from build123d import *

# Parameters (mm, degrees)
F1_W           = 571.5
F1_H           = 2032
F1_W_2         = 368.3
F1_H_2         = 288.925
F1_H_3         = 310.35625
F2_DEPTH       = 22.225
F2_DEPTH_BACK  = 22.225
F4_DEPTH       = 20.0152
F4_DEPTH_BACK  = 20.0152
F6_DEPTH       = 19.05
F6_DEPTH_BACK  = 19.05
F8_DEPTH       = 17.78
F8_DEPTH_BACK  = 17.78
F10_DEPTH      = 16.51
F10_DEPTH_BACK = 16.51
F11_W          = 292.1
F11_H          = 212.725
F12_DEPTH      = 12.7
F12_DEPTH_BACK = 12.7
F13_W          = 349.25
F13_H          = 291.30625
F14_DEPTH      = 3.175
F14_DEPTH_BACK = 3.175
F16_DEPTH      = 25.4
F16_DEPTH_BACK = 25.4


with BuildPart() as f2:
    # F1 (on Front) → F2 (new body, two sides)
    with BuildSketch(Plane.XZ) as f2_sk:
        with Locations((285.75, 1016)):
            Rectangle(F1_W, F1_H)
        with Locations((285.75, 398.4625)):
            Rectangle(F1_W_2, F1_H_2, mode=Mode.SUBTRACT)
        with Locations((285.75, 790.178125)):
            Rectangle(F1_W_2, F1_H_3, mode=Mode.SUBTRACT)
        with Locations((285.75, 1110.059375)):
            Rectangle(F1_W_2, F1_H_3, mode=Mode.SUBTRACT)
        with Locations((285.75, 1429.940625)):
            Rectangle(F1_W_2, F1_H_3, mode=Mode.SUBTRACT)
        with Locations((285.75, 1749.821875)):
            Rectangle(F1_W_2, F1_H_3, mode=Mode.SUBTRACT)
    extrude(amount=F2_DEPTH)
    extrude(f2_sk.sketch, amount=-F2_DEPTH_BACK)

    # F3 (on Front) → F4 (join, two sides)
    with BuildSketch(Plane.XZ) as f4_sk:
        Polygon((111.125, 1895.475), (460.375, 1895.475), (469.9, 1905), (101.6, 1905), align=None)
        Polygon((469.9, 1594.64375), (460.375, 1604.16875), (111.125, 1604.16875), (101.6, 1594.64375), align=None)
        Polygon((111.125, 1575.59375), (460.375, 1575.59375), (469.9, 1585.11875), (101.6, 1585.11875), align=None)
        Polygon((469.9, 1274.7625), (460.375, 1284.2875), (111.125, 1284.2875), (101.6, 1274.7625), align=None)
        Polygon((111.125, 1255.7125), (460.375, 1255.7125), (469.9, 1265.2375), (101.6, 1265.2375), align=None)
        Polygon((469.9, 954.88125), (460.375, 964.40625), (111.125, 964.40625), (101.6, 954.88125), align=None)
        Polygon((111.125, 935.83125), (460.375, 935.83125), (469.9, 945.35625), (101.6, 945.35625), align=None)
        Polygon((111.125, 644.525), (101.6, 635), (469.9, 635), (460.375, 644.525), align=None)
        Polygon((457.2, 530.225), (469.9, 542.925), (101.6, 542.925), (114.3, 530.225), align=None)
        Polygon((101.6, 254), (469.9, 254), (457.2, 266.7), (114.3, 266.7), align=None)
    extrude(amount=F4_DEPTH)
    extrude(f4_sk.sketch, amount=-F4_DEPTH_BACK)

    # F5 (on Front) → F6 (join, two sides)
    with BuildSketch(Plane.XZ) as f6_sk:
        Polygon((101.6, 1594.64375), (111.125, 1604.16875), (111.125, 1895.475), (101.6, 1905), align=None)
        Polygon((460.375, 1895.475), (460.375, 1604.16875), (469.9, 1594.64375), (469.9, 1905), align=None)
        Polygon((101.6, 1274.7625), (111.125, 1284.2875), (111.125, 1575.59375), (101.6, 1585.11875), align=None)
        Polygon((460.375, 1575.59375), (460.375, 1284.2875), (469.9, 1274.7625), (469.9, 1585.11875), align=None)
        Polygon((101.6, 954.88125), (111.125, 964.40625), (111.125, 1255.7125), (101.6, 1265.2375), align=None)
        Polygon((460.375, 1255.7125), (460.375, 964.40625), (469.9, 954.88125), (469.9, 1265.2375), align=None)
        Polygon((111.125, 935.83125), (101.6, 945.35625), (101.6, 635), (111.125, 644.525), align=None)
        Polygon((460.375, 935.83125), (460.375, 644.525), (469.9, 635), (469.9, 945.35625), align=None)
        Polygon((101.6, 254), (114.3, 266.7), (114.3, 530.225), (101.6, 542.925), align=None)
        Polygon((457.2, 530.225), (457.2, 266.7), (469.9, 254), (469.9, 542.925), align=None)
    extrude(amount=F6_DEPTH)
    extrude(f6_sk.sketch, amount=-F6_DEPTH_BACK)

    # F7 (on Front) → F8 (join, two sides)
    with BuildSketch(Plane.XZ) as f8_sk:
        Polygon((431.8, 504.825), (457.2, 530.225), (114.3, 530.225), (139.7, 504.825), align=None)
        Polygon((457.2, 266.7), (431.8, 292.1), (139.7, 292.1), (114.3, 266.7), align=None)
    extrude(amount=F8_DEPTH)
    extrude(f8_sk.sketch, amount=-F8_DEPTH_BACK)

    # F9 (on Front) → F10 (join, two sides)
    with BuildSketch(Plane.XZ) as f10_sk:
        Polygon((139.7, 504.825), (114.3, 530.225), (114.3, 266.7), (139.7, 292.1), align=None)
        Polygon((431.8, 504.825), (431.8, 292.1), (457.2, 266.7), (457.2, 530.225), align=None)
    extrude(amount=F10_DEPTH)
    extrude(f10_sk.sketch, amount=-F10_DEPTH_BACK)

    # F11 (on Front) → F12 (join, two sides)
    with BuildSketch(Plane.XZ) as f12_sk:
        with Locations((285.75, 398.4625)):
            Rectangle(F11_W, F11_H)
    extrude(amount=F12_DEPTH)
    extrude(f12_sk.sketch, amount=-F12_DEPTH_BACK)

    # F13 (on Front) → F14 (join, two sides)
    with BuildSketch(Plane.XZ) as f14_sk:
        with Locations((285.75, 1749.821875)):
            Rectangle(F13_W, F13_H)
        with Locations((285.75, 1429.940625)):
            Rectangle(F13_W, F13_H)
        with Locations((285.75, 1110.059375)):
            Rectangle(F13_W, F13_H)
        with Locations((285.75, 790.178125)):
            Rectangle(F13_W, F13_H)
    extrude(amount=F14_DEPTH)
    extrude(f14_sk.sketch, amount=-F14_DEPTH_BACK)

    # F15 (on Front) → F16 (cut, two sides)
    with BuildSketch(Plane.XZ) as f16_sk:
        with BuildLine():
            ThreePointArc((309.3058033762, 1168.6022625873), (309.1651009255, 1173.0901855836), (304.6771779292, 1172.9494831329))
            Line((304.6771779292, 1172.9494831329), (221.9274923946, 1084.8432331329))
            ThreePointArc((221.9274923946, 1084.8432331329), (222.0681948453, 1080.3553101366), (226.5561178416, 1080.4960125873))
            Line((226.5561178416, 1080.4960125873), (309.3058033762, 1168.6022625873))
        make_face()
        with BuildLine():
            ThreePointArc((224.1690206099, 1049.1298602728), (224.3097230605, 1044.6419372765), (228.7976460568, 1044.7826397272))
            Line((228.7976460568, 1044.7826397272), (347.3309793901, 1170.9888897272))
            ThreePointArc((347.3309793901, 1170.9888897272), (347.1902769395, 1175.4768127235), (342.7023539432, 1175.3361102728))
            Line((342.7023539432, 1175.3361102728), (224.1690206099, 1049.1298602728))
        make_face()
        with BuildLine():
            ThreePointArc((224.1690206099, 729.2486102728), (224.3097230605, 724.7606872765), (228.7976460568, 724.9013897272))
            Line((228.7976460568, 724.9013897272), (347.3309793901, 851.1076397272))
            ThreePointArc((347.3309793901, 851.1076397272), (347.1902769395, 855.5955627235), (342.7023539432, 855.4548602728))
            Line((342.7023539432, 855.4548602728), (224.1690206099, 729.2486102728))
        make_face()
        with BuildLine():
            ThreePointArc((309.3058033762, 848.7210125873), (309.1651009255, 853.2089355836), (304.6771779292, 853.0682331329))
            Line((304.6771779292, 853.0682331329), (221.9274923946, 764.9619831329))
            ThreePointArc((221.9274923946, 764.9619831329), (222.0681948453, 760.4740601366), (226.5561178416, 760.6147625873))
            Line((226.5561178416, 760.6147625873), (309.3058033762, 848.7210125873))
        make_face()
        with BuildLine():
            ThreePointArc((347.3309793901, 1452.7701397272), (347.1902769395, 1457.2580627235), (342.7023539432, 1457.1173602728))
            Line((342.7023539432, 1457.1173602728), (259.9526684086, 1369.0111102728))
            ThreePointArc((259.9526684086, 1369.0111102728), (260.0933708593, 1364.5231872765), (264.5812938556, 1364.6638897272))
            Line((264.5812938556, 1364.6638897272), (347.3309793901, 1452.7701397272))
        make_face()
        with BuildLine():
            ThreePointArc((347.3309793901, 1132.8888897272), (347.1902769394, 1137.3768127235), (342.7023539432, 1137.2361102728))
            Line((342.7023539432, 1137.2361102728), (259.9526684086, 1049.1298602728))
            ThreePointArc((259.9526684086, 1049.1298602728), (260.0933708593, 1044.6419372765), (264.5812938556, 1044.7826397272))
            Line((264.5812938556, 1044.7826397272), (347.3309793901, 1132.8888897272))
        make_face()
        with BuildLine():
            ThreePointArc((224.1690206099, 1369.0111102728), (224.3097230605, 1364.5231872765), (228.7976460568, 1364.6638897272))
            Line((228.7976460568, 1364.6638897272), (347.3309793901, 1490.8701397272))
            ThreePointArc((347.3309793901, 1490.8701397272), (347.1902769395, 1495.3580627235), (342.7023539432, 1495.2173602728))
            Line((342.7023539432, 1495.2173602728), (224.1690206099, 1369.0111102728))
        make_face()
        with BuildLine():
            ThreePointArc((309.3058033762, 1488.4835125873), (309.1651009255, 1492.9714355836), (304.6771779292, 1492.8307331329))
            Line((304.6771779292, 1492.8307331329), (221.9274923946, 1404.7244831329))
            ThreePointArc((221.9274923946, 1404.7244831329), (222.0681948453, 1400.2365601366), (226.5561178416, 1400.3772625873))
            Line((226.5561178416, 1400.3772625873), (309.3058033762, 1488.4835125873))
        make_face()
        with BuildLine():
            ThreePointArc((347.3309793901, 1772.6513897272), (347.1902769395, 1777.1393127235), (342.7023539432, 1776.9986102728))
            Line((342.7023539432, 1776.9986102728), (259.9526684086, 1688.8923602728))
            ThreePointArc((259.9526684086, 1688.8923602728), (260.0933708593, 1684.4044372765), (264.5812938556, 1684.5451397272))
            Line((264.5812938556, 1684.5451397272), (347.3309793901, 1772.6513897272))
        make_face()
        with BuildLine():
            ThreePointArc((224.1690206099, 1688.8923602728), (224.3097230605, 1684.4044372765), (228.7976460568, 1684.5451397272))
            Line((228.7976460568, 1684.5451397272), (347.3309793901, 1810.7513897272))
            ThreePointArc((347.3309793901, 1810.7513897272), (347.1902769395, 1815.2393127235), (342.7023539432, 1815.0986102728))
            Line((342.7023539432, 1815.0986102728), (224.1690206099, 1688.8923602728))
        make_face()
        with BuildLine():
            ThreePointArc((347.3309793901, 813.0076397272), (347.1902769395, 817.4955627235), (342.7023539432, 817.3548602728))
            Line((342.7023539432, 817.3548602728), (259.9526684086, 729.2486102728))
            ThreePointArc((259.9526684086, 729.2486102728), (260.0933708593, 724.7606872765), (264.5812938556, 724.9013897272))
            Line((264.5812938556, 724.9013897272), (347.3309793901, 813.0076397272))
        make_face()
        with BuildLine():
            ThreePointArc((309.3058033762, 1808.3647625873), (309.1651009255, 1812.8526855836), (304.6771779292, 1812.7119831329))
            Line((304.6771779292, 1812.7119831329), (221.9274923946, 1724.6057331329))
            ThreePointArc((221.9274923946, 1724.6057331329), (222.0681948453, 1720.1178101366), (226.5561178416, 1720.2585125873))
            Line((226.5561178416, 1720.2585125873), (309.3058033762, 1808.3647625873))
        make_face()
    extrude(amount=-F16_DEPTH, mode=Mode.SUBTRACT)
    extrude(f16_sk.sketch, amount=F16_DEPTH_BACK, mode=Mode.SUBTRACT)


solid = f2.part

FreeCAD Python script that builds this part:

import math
import FreeCAD as App
import Part
import Sketcher
from FreeCAD import Vector
Q = App.Units.Quantity


def add_polygon(sketch, points):
    """Adds a closed chain of lines whose ends are joined by coincident constraints."""
    first, n = sketch.GeometryCount, len(points)
    for a, b in zip(points, points[1:] + points[:1]):
        sketch.addGeometry(Part.LineSegment(App.Vector(*a, 0), App.Vector(*b, 0)), False)
    for i in range(n):
        sketch.addConstraint(Sketcher.Constraint("Coincident", first + i, 2, first + (i + 1) % n, 1))

doc = App.newDocument("Part")
params = doc.addObject("Spreadsheet::Sheet", "Params")
for row, (alias, value) in enumerate([
    ("sketch1_height", "80 in"),
    ("sketch1_width", "22.5 in"),
    ("sketch1_width2", "14.5 in"),
    ("sketch1_height2", "11.375 in"),
    ("sketch1_height3", "12.21875 in"),
    ("pad1_length", "0.875 in"),
    ("pad1_length2", "0.875 in"),
    ("sketch2_width", "14.5 in"),
    ("sketch2_width2", "13.5 in"),
    ("sketch2_width3", "13.75 in"),
    ("pad2_length", "0.788 in"),
    ("pad2_length2", "0.788 in"),
    ("sketch3_height", "11.46875 in"),
    ("sketch3_height2", "12.21875 in"),
    ("pad3_length", "0.75 in"),
    ("pad3_length2", "0.75 in"),
    ("sketch4_width", "13.5 in"),
    ("sketch4_width2", "11.5 in"),
    ("pad4_length", "0.7 in"),
    ("pad4_length2", "0.7 in"),
    ("sketch5_height", "10.375 in"),
    ("pad5_length", "0.65 in"),
    ("pad5_length2", "0.65 in"),
    ("sketch6_width", "11.5 in"),
    ("sketch6_height", "8.375 in"),
    ("pad6_length", "0.5 in"),
    ("pad6_length2", "0.5 in"),
    ("sketch7_width", "13.75 in"),
    ("sketch7_height", "11.46875 in"),
    ("pad7_length", "0.125 in"),
    ("pad7_length2", "0.125 in"),
    ("sketch8_radius", "0.125 in"),
], start=1):
    params.set(f"A{row}", alias)
    params.set(f"B{row}", "=" + value)
    params.setAlias(f"B{row}", alias)

body = doc.addObject("PartDesign::Body", "Body")

# Sketch on XZ plane
sketch1 = body.newObject("Sketcher::SketchObject", "Sketch")
sketch1.AttachmentSupport = (doc.getObject("XZ_Plane"), [""])
sketch1.MapMode = "FlatFace"
add_polygon(sketch1, [(0, 2032), (0, 0), (571.5, 0), (571.5, 2032)])  # lines 0-3
add_polygon(sketch1, [(469.9, 254), (101.6, 254), (101.6, 542.925), (469.9, 542.925)])  # lines 4-7
add_polygon(sketch1, [(469.9, 635), (101.6, 635), (101.6, 945.35625), (469.9, 945.35625)])  # lines 8-11
add_polygon(sketch1, [(469.9, 954.88125), (101.6, 954.88125), (101.6, 1265.2375), (469.9, 1265.2375)])  # lines 12-15
add_polygon(sketch1, [(469.9, 1274.7625), (101.6, 1274.7625), (101.6, 1585.11875), (469.9, 1585.11875)])  # lines 16-19
add_polygon(sketch1, [(469.9, 1594.64375), (101.6, 1594.64375), (101.6, 1905), (469.9, 1905)])  # lines 20-23
sketch1.addConstraint(Sketcher.Constraint("Vertical", 0))
sketch1.addConstraint(Sketcher.Constraint("Horizontal", 1))
sketch1.addConstraint(Sketcher.Constraint("Vertical", 2))
sketch1.addConstraint(Sketcher.Constraint("Horizontal", 3))
sketch1.addConstraint(Sketcher.Constraint("Horizontal", 4))
sketch1.addConstraint(Sketcher.Constraint("Vertical", 5))
sketch1.addConstraint(Sketcher.Constraint("Horizontal", 6))
sketch1.addConstraint(Sketcher.Constraint("Vertical", 7))
sketch1.addConstraint(Sketcher.Constraint("Horizontal", 8))
sketch1.addConstraint(Sketcher.Constraint("Vertical", 9))
sketch1.addConstraint(Sketcher.Constraint("Horizontal", 10))
sketch1.addConstraint(Sketcher.Constraint("Vertical", 11))
sketch1.addConstraint(Sketcher.Constraint("Horizontal", 12))
sketch1.addConstraint(Sketcher.Constraint("Vertical", 13))
sketch1.addConstraint(Sketcher.Constraint("Horizontal", 14))
sketch1.addConstraint(Sketcher.Constraint("Vertical", 15))
sketch1.addConstraint(Sketcher.Constraint("Horizontal", 16))
sketch1.addConstraint(Sketcher.Constraint("Vertical", 17))
sketch1.addConstraint(Sketcher.Constraint("Horizontal", 18))
sketch1.addConstraint(Sketcher.Constraint("Vertical", 19))
sketch1.addConstraint(Sketcher.Constraint("Horizontal", 20))
sketch1.addConstraint(Sketcher.Constraint("Vertical", 21))
sketch1.addConstraint(Sketcher.Constraint("Horizontal", 22))
sketch1.addConstraint(Sketcher.Constraint("Vertical", 23))
sketch1.addConstraint(Sketcher.Constraint("Coincident", 0, 2, -1, 1))
sketch1.addConstraint(Sketcher.Constraint("Vertical", 5, 2, 8, 2))
sketch1.addConstraint(Sketcher.Constraint("Vertical", 7, 2, 10, 2))
sketch1.addConstraint(Sketcher.Constraint("Vertical", 9, 2, 12, 2))
sketch1.addConstraint(Sketcher.Constraint("Vertical", 11, 2, 14, 2))
sketch1.addConstraint(Sketcher.Constraint("Vertical", 13, 2, 16, 2))
sketch1.addConstraint(Sketcher.Constraint("Vertical", 15, 2, 18, 2))
sketch1.addConstraint(Sketcher.Constraint("Vertical", 17, 2, 20, 2))
sketch1.addConstraint(Sketcher.Constraint("Vertical", 19, 2, 22, 2))
sketch1.addConstraint(Sketcher.Constraint("Equal", 11, 13))
sketch1.addConstraint(Sketcher.Constraint("Equal", 15, 17))
sketch1.addConstraint(Sketcher.Constraint("Equal", 19, 21))
sketch1.addConstraint(Sketcher.Constraint("DistanceY", 0, 2, 0, 1, Q("80 in")))
sketch1.addConstraint(Sketcher.Constraint("DistanceX", 1, 1, 1, 2, Q("22.5 in")))
sketch1.addConstraint(Sketcher.Constraint("DistanceX", 4, 2, 4, 1, Q("14.5 in")))
sketch1.addConstraint(Sketcher.Constraint("DistanceX", -1, 1, 4, 2, Q("4 in")))
sketch1.addConstraint(Sketcher.Constraint("DistanceY", -1, 1, 4, 2, Q("10 in")))
sketch1.addConstraint(Sketcher.Constraint("DistanceY", -1, 1, 8, 2, Q("25 in")))
sketch1.addConstraint(Sketcher.Constraint("DistanceY", -1, 1, 21, 2, Q("75 in")))
sketch1.addConstraint(Sketcher.Constraint("DistanceY", 5, 1, 5, 2, Q("11.375 in")))
sketch1.addConstraint(Sketcher.Constraint("DistanceY", 9, 1, 9, 2, Q("12.21875 in")))
sketch1.addConstraint(Sketcher.Constraint("DistanceY", -1, 1, 12, 2, Q("37.59375 in")))
sketch1.addConstraint(Sketcher.Constraint("DistanceY", -1, 1, 16, 2, Q("50.1875 in")))
sketch1.setExpression("Constraints[60]", "Params.sketch1_height")
sketch1.setExpression("Constraints[61]", "Params.sketch1_width")
sketch1.setExpression("Constraints[62]", "Params.sketch1_width2")
sketch1.setExpression("Constraints[67]", "Params.sketch1_height2")
sketch1.setExpression("Constraints[68]", "Params.sketch1_height3")
pad1 = body.newObject("PartDesign::Pad", "Pad")
pad1.Profile = sketch1
pad1.Type = "TwoLengths"
pad1.setExpression("Length", "Params.pad1_length")
pad1.setExpression("Length2", "Params.pad1_length2")

# Sketch on XZ plane
sketch2 = body.newObject("Sketcher::SketchObject", "Sketch001")
sketch2.AttachmentSupport = (doc.getObject("XZ_Plane"), [""])
sketch2.MapMode = "FlatFace"
add_polygon(sketch2, [(111.125, 1895.475), (460.375, 1895.475), (469.9, 1905), (101.6, 1905)])  # lines 0-3
add_polygon(sketch2, [(469.9, 1594.64375), (460.375, 1604.16875), (111.125, 1604.16875), (101.6, 1594.64375)])  # lines 4-7
add_polygon(sketch2, [(111.125, 1575.59375), (460.375, 1575.59375), (469.9, 1585.11875), (101.6, 1585.11875)])  # lines 8-11
add_polygon(sketch2, [(469.9, 1274.7625), (460.375, 1284.2875), (111.125, 1284.2875), (101.6, 1274.7625)])  # lines 12-15
add_polygon(sketch2, [(111.125, 1255.7125), (460.375, 1255.7125), (469.9, 1265.2375), (101.6, 1265.2375)])  # lines 16-19
add_polygon(sketch2, [(469.9, 954.88125), (460.375, 964.40625), (111.125, 964.40625), (101.6, 954.88125)])  # lines 20-23
add_polygon(sketch2, [(111.125, 935.83125), (460.375, 935.83125), (469.9, 945.35625), (101.6, 945.35625)])  # lines 24-27
add_polygon(sketch2, [(111.125, 644.525), (101.6, 635), (469.9, 635), (460.375, 644.525)])  # lines 28-31
add_polygon(sketch2, [(457.2, 530.225), (469.9, 542.925), (101.6, 542.925), (114.3, 530.225)])  # lines 32-35
add_polygon(sketch2, [(101.6, 254), (469.9, 254), (457.2, 266.7), (114.3, 266.7)])  # lines 36-39
sketch2.addConstraint(Sketcher.Constraint("Horizontal", 0))
sketch2.addConstraint(Sketcher.Constraint("Horizontal", 2))
sketch2.addConstraint(Sketcher.Constraint("Horizontal", 5))
sketch2.addConstraint(Sketcher.Constraint("Horizontal", 7))
sketch2.addConstraint(Sketcher.Constraint("Horizontal", 8))
sketch2.addConstraint(Sketcher.Constraint("Horizontal", 10))
sketch2.addConstraint(Sketcher.Constraint("Horizontal", 13))
sketch2.addConstraint(Sketcher.Constraint("Horizontal", 15))
sketch2.addConstraint(Sketcher.Constraint("Horizontal", 16))
sketch2.addConstraint(Sketcher.Constraint("Horizontal", 18))
sketch2.addConstraint(Sketcher.Constraint("Horizontal", 21))
sketch2.addConstraint(Sketcher.Constraint("Horizontal", 23))
sketch2.addConstraint(Sketcher.Constraint("Horizontal", 24))
sketch2.addConstraint(Sketcher.Constraint("Horizontal", 26))
sketch2.addConstraint(Sketcher.Constraint("Horizontal", 29))
sketch2.addConstraint(Sketcher.Constraint("Horizontal", 31))
sketch2.addConstraint(Sketcher.Constraint("Horizontal", 33))
sketch2.addConstraint(Sketcher.Constraint("Horizontal", 35))
sketch2.addConstraint(Sketcher.Constraint("Horizontal", 36))
sketch2.addConstraint(Sketcher.Constraint("Horizontal", 38))
sketch2.addConstraint(Sketcher.Constraint("Perpendicular", 1, 3))
sketch2.addConstraint(Sketcher.Constraint("Parallel", 3, 4))
sketch2.addConstraint(Sketcher.Constraint("Perpendicular", 4, 6))
sketch2.addConstraint(Sketcher.Constraint("Parallel", 6, 9))
sketch2.addConstraint(Sketcher.Constraint("Perpendicular", 9, 11))
sketch2.addConstraint(Sketcher.Constraint("Parallel", 11, 12))
sketch2.addConstraint(Sketcher.Constraint("Perpendicular", 12, 14))
sketch2.addConstraint(Sketcher.Constraint("Parallel", 14, 17))
sketch2.addConstraint(Sketcher.Constraint("Perpendicular", 17, 19))
sketch2.addConstraint(Sketcher.Constraint("Parallel", 19, 20))
sketch2.addConstraint(Sketcher.Constraint("Perpendicular", 20, 22))
sketch2.addConstraint(Sketcher.Constraint("Parallel", 22, 25))
sketch2.addConstraint(Sketcher.Constraint("Perpendicular", 25, 27))
sketch2.addConstraint(Sketcher.Constraint("Perpendicular", 27, 28))
sketch2.addConstraint(Sketcher.Constraint("Perpendicular", 28, 30))
sketch2.addConstraint(Sketcher.Constraint("Perpendicular", 30, 32))
sketch2.addConstraint(Sketcher.Constraint("Perpendicular", 32, 34))
sketch2.addConstraint(Sketcher.Constraint("Parallel", 34, 37))
sketch2.addConstraint(Sketcher.Constraint("Perpendicular", 37, 39))
sketch2.addConstraint(Sketcher.Constraint("Vertical", 0, 2, 4, 2))
sketch2.addConstraint(Sketcher.Constraint("Vertical", 3, 2, 5, 2))
sketch2.addConstraint(Sketcher.Constraint("Vertical", 2, 2, 6, 2))
sketch2.addConstraint(Sketcher.Constraint("Vertical", 1, 2, 7, 2))
sketch2.addConstraint(Sketcher.Constraint("Vertical", 4, 2, 8, 2))
sketch2.addConstraint(Sketcher.Constraint("Vertical", 7, 2, 9, 2))
sketch2.addConstraint(Sketcher.Constraint("Vertical", 6, 2, 10, 2))
sketch2.addConstraint(Sketcher.Constraint("Vertical", 8, 2, 12, 2))
sketch2.addConstraint(Sketcher.Constraint("Vertical", 11, 2, 13, 2))
sketch2.addConstraint(Sketcher.Constraint("Vertical", 10, 2, 14, 2))
sketch2.addConstraint(Sketcher.Constraint("Vertical", 12, 2, 16, 2))
sketch2.addConstraint(Sketcher.Constraint("Vertical", 15, 2, 17, 2))
sketch2.addConstraint(Sketcher.Constraint("Vertical", 14, 2, 18, 2))
sketch2.addConstraint(Sketcher.Constraint("Vertical", 16, 2, 20, 2))
sketch2.addConstraint(Sketcher.Constraint("Vertical", 19, 2, 21, 2))
sketch2.addConstraint(Sketcher.Constraint("Vertical", 18, 2, 22, 2))
sketch2.addConstraint(Sketcher.Constraint("Vertical", 20, 2, 24, 2))
sketch2.addConstraint(Sketcher.Constraint("Vertical", 23, 2, 25, 2))
sketch2.addConstraint(Sketcher.Constraint("Vertical", 22, 2, 26, 2))
sketch2.addConstraint(Sketcher.Constraint("Vertical", 26, 2, 28, 2))
sketch2.addConstraint(Sketcher.Constraint("Vertical", 25, 2, 29, 2))
sketch2.addConstraint(Sketcher.Constraint("Vertical", 24, 2, 30, 2))
sketch2.addConstraint(Sketcher.Constraint("Vertical", 29, 2, 32, 2))
sketch2.addConstraint(Sketcher.Constraint("Vertical", 28, 2, 33, 2))
sketch2.addConstraint(Sketcher.Constraint("Vertical", 32, 2, 36, 2))
sketch2.addConstraint(Sketcher.Constraint("Vertical", 35, 2, 37, 2))
sketch2.addConstraint(Sketcher.Constraint("Vertical", 34, 2, 38, 2))
sketch2.addConstraint(Sketcher.Constraint("DistanceX", 2, 2, 2, 1, Q("14.5 in")))
sketch2.addConstraint(Sketcher.Constraint("DistanceX", 35, 1, 35, 2, Q("13.5 in")))
sketch2.addConstraint(Sketcher.Constraint("DistanceY", -1, 1, 1, 2, Q("75 in")))
sketch2.addConstraint(Sketcher.Constraint("DistanceX", -1, 1, 2, 2, Q("4 in")))
sketch2.addConstraint(Sketcher.Constraint("DistanceY", -1, 1, 28, 2, Q("25 in")))
sketch2.addConstraint(Sketcher.Constraint("DistanceY", -1, 1, 36, 2, Q("10 in")))
sketch2.addConstraint(Sketcher.Constraint("DistanceY", 32, 2, 30, 2, Q("4 in")))
sketch2.addConstraint(Sketcher.Constraint("DistanceX", 0, 1, 0, 2, Q("13.75 in")))
sketch2.addConstraint(Sketcher.Constraint("DistanceY", 8, 2, 7, 2, Q("0.75 in")))
sketch2.addConstraint(Sketcher.Constraint("DistanceY", 16, 2, 15, 2, Q("0.75 in")))
sketch2.addConstraint(Sketcher.Constraint("DistanceY", 24, 2, 23, 2, Q("0.75 in")))
sketch2.addConstraint(Sketcher.Constraint("DistanceY", -1, 1, 4, 2, Q("63.15625 in")))
sketch2.addConstraint(Sketcher.Constraint("DistanceY", -1, 1, 12, 2, Q("50.5625 in")))
sketch2.addConstraint(Sketcher.Constraint("DistanceY", -1, 1, 20, 2, Q("37.96875 in")))
sketch2.setExpression("Constraints[106]", "Params.sketch2_width")
sketch2.setExpression("Constraints[107]", "Params.sketch2_width2")
sketch2.setExpression("Constraints[113]", "Params.sketch2_width3")
pad2 = body.newObject("PartDesign::Pad", "Pad001")
pad2.Profile = sketch2
pad2.Type = "TwoLengths"
pad2.setExpression("Length", "Params.pad2_length")
pad2.setExpression("Length2", "Params.pad2_length2")

# Sketch on XZ plane
sketch3 = body.newObject("Sketcher::SketchObject", "Sketch002")
sketch3.AttachmentSupport = (doc.getObject("XZ_Plane"), [""])
sketch3.MapMode = "FlatFace"
add_polygon(sketch3, [(101.6, 1594.64375), (111.125, 1604.16875), (111.125, 1895.475), (101.6, 1905)])  # lines 0-3
add_polygon(sketch3, [(460.375, 1895.475), (460.375, 1604.16875), (469.9, 1594.64375), (469.9, 1905)])  # lines 4-7
add_polygon(sketch3, [(101.6, 1274.7625), (111.125, 1284.2875), (111.125, 1575.59375), (101.6, 1585.11875)])  # lines 8-11
add_polygon(sketch3, [(460.375, 1575.59375), (460.375, 1284.2875), (469.9, 1274.7625), (469.9, 1585.11875)])  # lines 12-15
add_polygon(sketch3, [(101.6, 954.88125), (111.125, 964.40625), (111.125, 1255.7125), (101.6, 1265.2375)])  # lines 16-19
add_polygon(sketch3, [(460.375, 1255.7125), (460.375, 964.40625), (469.9, 954.88125), (469.9, 1265.2375)])  # lines 20-23
add_polygon(sketch3, [(111.125, 935.83125), (101.6, 945.35625), (101.6, 635), (111.125, 644.525)])  # lines 24-27
add_polygon(sketch3, [(460.375, 935.83125), (460.375, 644.525), (469.9, 635), (469.9, 945.35625)])  # lines 28-31
add_polygon(sketch3, [(101.6, 254), (114.3, 266.7), (114.3, 530.225), (101.6, 542.925)])  # lines 32-35
add_polygon(sketch3, [(457.2, 530.225), (457.2, 266.7), (469.9, 254), (469.9, 542.925)])  # lines 36-39
sketch3.addConstraint(Sketcher.Constraint("Vertical", 1))
sketch3.addConstraint(Sketcher.Constraint("Vertical", 3))
sketch3.addConstraint(Sketcher.Constraint("Vertical", 4))
sketch3.addConstraint(Sketcher.Constraint("Vertical", 6))
sketch3.addConstraint(Sketcher.Constraint("Vertical", 9))
sketch3.addConstraint(Sketcher.Constraint("Vertical", 11))
sketch3.addConstraint(Sketcher.Constraint("Vertical", 12))
sketch3.addConstraint(Sketcher.Constraint("Vertical", 14))
sketch3.addConstraint(Sketcher.Constraint("Vertical", 17))
sketch3.addConstraint(Sketcher.Constraint("Vertical", 19))
sketch3.addConstraint(Sketcher.Constraint("Vertical", 20))
sketch3.addConstraint(Sketcher.Constraint("Vertical", 22))
sketch3.addConstraint(Sketcher.Constraint("Vertical", 25))
sketch3.addConstraint(Sketcher.Constraint("Vertical", 27))
sketch3.addConstraint(Sketcher.Constraint("Vertical", 28))
sketch3.addConstraint(Sketcher.Constraint("Vertical", 30))
sketch3.addConstraint(Sketcher.Constraint("Vertical", 33))
sketch3.addConstraint(Sketcher.Constraint("Vertical", 35))
sketch3.addConstraint(Sketcher.Constraint("Vertical", 36))
sketch3.addConstraint(Sketcher.Constraint("Vertical", 38))
sketch3.addConstraint(Sketcher.Constraint("Perpendicular", 0, 2))
sketch3.addConstraint(Sketcher.Constraint("Parallel", 2, 5))
sketch3.addConstraint(Sketcher.Constraint("Perpendicular", 5, 7))
sketch3.addConstraint(Sketcher.Constraint("Parallel", 7, 8))
sketch3.addConstraint(Sketcher.Constraint("Perpendicular", 8, 10))
sketch3.addConstraint(Sketcher.Constraint("Parallel", 10, 13))
sketch3.addConstraint(Sketcher.Constraint("Perpendicular", 13, 15))
sketch3.addConstraint(Sketcher.Constraint("Parallel", 15, 16))
sketch3.addConstraint(Sketcher.Constraint("Perpendicular", 16, 18))
sketch3.addConstraint(Sketcher.Constraint("Parallel", 18, 21))
sketch3.addConstraint(Sketcher.Constraint("Perpendicular", 21, 23))
sketch3.addConstraint(Sketcher.Constraint("Perpendicular", 23, 24))
sketch3.addConstraint(Sketcher.Constraint("Perpendicular", 24, 26))
sketch3.addConstraint(Sketcher.Constraint("Perpendicular", 26, 29))
sketch3.addConstraint(Sketcher.Constraint("Perpendicular", 29, 31))
sketch3.addConstraint(Sketcher.Constraint("Parallel", 31, 32))
sketch3.addConstraint(Sketcher.Constraint("Perpendicular", 32, 34))
sketch3.addConstraint(Sketcher.Constraint("Parallel", 34, 37))
sketch3.addConstraint(Sketcher.Constraint("Perpendicular", 37, 39))
sketch3.addConstraint(Sketcher.Constraint("Horizontal", 0, 2, 4, 2))
sketch3.addConstraint(Sketcher.Constraint("Horizontal", 3, 2, 5, 2))
sketch3.addConstraint(Sketcher.Constraint("Horizontal", 2, 2, 6, 2))
sketch3.addConstraint(Sketcher.Constraint("Horizontal", 1, 2, 7, 2))
sketch3.addConstraint(Sketcher.Constraint("Horizontal", 8, 2, 12, 2))
sketch3.addConstraint(Sketcher.Constraint("Horizontal", 11, 2, 13, 2))
sketch3.addConstraint(Sketcher.Constraint("Horizontal", 10, 2, 14, 2))
sketch3.addConstraint(Sketcher.Constraint("Horizontal", 16, 2, 20, 2))
sketch3.addConstraint(Sketcher.Constraint("Horizontal", 19, 2, 21, 2))
sketch3.addConstraint(Sketcher.Constraint("Horizontal", 18, 2, 22, 2))
sketch3.addConstraint(Sketcher.Constraint("Horizontal", 26, 2, 28, 2))
sketch3.addConstraint(Sketcher.Constraint("Horizontal", 25, 2, 29, 2))
sketch3.addConstraint(Sketcher.Constraint("Horizontal", 24, 2, 30, 2))
sketch3.addConstraint(Sketcher.Constraint("Horizontal", 32, 2, 36, 2))
sketch3.addConstraint(Sketcher.Constraint("Horizontal", 35, 2, 37, 2))
sketch3.addConstraint(Sketcher.Constraint("Horizontal", 34, 2, 38, 2))
sketch3.addConstraint(Sketcher.Constraint("Vertical", 1, 2, 8, 2))
sketch3.addConstraint(Sketcher.Constraint("Vertical", 3, 2, 10, 2))
sketch3.addConstraint(Sketcher.Constraint("Vertical", 7, 2, 12, 2))
sketch3.addConstraint(Sketcher.Constraint("Vertical", 9, 2, 16, 2))
sketch3.addConstraint(Sketcher.Constraint("Vertical", 11, 2, 18, 2))
sketch3.addConstraint(Sketcher.Constraint("Vertical", 15, 2, 20, 2))
sketch3.addConstraint(Sketcher.Constraint("Vertical", 19, 2, 24, 2))
sketch3.addConstraint(Sketcher.Constraint("Vertical", 17, 2, 26, 2))
sketch3.addConstraint(Sketcher.Constraint("Vertical", 23, 2, 28, 2))
sketch3.addConstraint(Sketcher.Constraint("Vertical", 25, 2, 34, 2))
sketch3.addConstraint(Sketcher.Constraint("Vertical", 30, 2, 37, 2))
sketch3.addConstraint(Sketcher.Constraint("Equal", 4, 9))
sketch3.addConstraint(Sketcher.Constraint("Equal", 12, 17))
sketch3.addConstraint(Sketcher.Constraint("Equal", 22, 25))
sketch3.addConstraint(Sketcher.Constraint("DistanceX", -1, 1, 2, 2, Q("4 in")))
sketch3.addConstraint(Sketcher.Constraint("DistanceY", -1, 1, 2, 2, Q("75 in")))
sketch3.addConstraint(Sketcher.Constraint("DistanceY", -1, 1, 25, 2, Q("25 in")))
sketch3.addConstraint(Sketcher.Constraint("DistanceY", -1, 1, 35, 2, Q("10 in")))
sketch3.addConstraint(Sketcher.Constraint("DistanceX", -1, 1, 36, 2, Q("18 in")))
sketch3.addConstraint(Sketcher.Constraint("DistanceY", 34, 2, 26, 2, Q("4 in")))
sketch3.addConstraint(Sketcher.Constraint("DistanceX", -1, 1, 5, 2, Q("18.5 in")))
sketch3.addConstraint(Sketcher.Constraint("DistanceY", 1, 1, 1, 2, Q("11.46875 in")))
sketch3.addConstraint(Sketcher.Constraint("DistanceY", 3, 2, 3, 1, Q("12.21875 in")))
sketch3.addConstraint(Sketcher.Constraint("DistanceY", 9, 2, 3, 2, Q("0.75 in")))
sketch3.addConstraint(Sketcher.Constraint("DistanceY", 17, 2, 11, 2, Q("0.75 in")))
sketch3.setExpression("Constraints[116]", "Params.sketch3_height")
sketch3.setExpression("Constraints[117]", "Params.sketch3_height2")
pad3 = body.newObject("PartDesign::Pad", "Pad002")
pad3.Profile = sketch3
pad3.Type = "TwoLengths"
pad3.setExpression("Length", "Params.pad3_length")
pad3.setExpression("Length2", "Params.pad3_length2")

# Sketch on XZ plane
sketch4 = body.newObject("Sketcher::SketchObject", "Sketch003")
sketch4.AttachmentSupport = (doc.getObject("XZ_Plane"), [""])
sketch4.MapMode = "FlatFace"
add_polygon(sketch4, [(431.8, 504.825), (457.2, 530.225), (114.3, 530.225), (139.7, 504.825)])  # lines 0-3
add_polygon(sketch4, [(457.2, 266.7), (431.8, 292.1), (139.7, 292.1), (114.3, 266.7)])  # lines 4-7
sketch4.addConstraint(Sketcher.Constraint("Horizontal", 1))
sketch4.addConstraint(Sketcher.Constraint("Horizontal", 3))
sketch4.addConstraint(Sketcher.Constraint("Horizontal", 5))
sketch4.addConstraint(Sketcher.Constraint("Horizontal", 7))
sketch4.addConstraint(Sketcher.Constraint("Perpendicular", 0, 2))
sketch4.addConstraint(Sketcher.Constraint("Parallel", 2, 4))
sketch4.addConstraint(Sketcher.Constraint("Perpendicular", 4, 6))
sketch4.addConstraint(Sketcher.Constraint("Vertical", 3, 2, 4, 2))
sketch4.addConstraint(Sketcher.Constraint("Vertical", 2, 2, 5, 2))
sketch4.addConstraint(Sketcher.Constraint("Vertical", 1, 2, 6, 2))
sketch4.addConstraint(Sketcher.Constraint("Vertical", 0, 2, 7, 2))
sketch4.addConstraint(Sketcher.Constraint("DistanceX", 1, 2, 1, 1, Q("13.5 in")))
sketch4.addConstraint(Sketcher.Constraint("DistanceX", 3, 1, 3, 2, Q("11.5 in")))
sketch4.addConstraint(Sketcher.Constraint("DistanceX", -1, 1, 0, 2, Q("18 in")))
sketch4.addConstraint(Sketcher.Constraint("DistanceY", -1, 1, 4, 2, Q("11.5 in")))
sketch4.addConstraint(Sketcher.Constraint("DistanceY", -1, 1, 0, 2, Q("20.875 in")))
sketch4.setExpression("Constraints[19]", "Params.sketch4_width")
sketch4.setExpression("Constraints[20]", "Params.sketch4_width2")
pad4 = body.newObject("PartDesign::Pad", "Pad003")
pad4.Profile = sketch4
pad4.Type = "TwoLengths"
pad4.setExpression("Length", "Params.pad4_length")
pad4.setExpression("Length2", "Params.pad4_length2")

# Sketch on XZ plane
sketch5 = body.newObject("Sketcher::SketchObject", "Sketch004")
sketch5.AttachmentSupport = (doc.getObject("XZ_Plane"), [""])
sketch5.MapMode = "FlatFace"
add_polygon(sketch5, [(139.7, 504.825), (114.3, 530.225), (114.3, 266.7), (139.7, 292.1)])  # lines 0-3
add_polygon(sketch5, [(431.8, 504.825), (431.8, 292.1), (457.2, 266.7), (457.2, 530.225)])  # lines 4-7
sketch5.addConstraint(Sketcher.Constraint("Vertical", 1))
sketch5.addConstraint(Sketcher.Constraint("Vertical", 3))
sketch5.addConstraint(Sketcher.Constraint("Vertical", 4))
sketch5.addConstraint(Sketcher.Constraint("Vertical", 6))
sketch5.addConstraint(Sketcher.Constraint("Perpendicular", 0, 2))
sketch5.addConstraint(Sketcher.Constraint("Perpendicular", 2, 5))
sketch5.addConstraint(Sketcher.Constraint("Perpendicular", 5, 7))
sketch5.addConstraint(Sketcher.Constraint("Horizontal", 2, 2, 4, 2))
sketch5.addConstraint(Sketcher.Constraint("Horizontal", 1, 2, 5, 2))
sketch5.addConstraint(Sketcher.Constraint("Horizontal", 0, 2, 6, 2))
sketch5.addConstraint(Sketcher.Constraint("Horizontal", 3, 2, 7, 2))
sketch5.addConstraint(Sketcher.Constraint("DistanceX", -1, 1, 4, 2, Q("17 in")))
sketch5.addConstraint(Sketcher.Constraint("DistanceX", -1, 1, 5, 2, Q("18 in")))
sketch5.addConstraint(Sketcher.Constraint("DistanceX", -1, 1, 0, 2, Q("4.5 in")))
sketch5.addConstraint(Sketcher.Constraint("DistanceY", -1, 1, 1, 2, Q("10.5 in")))
sketch5.addConstraint(Sketcher.Constraint("DistanceY", 1, 2, 1, 1, Q("10.375 in")))
sketch5.setExpression("Constraints[23]", "Params.sketch5_height")
pad5 = body.newObject("PartDesign::Pad", "Pad004")
pad5.Profile = sketch5
pad5.Type = "TwoLengths"
pad5.setExpression("Length", "Params.pad5_length")
pad5.setExpression("Length2", "Params.pad5_length2")

# Sketch on XZ plane
sketch6 = body.newObject("Sketcher::SketchObject", "Sketch005")
sketch6.AttachmentSupport = (doc.getObject("XZ_Plane"), [""])
sketch6.MapMode = "FlatFace"
add_polygon(sketch6, [(139.7, 504.825), (139.7, 292.1), (431.8, 292.1), (431.8, 504.825)])  # lines 0-3
sketch6.addConstraint(Sketcher.Constraint("Vertical", 0))
sketch6.addConstraint(Sketcher.Constraint("Horizontal", 1))
sketch6.addConstraint(Sketcher.Constraint("Vertical", 2))
sketch6.addConstraint(Sketcher.Constraint("Horizontal", 3))
sketch6.addConstraint(Sketcher.Constraint("DistanceX", 1, 1, 1, 2, Q("11.5 in")))
sketch6.addConstraint(Sketcher.Constraint("DistanceX", -1, 1, 1, 2, Q("17 in")))
sketch6.addConstraint(Sketcher.Constraint("DistanceY", -1, 1, 0, 2, Q("11.5 in")))
sketch6.addConstraint(Sketcher.Constraint("DistanceY", 0, 2, 0, 1, Q("8.375 in")))
sketch6.setExpression("Constraints[8]", "Params.sketch6_width")
sketch6.setExpression("Constraints[11]", "Params.sketch6_height")
pad6 = body.newObject("PartDesign::Pad", "Pad005")
pad6.Profile = sketch6
pad6.Type = "TwoLengths"
pad6.setExpression("Length", "Params.pad6_length")
pad6.setExpression("Length2", "Params.pad6_length2")

# Sketch on XZ plane
sketch7 = body.newObject("Sketcher::SketchObject", "Sketch006")
sketch7.AttachmentSupport = (doc.getObject("XZ_Plane"), [""])
sketch7.MapMode = "FlatFace"
add_polygon(sketch7, [(111.125, 1895.475), (111.125, 1604.16875), (460.375, 1604.16875), (460.375, 1895.475)])  # lines 0-3
add_polygon(sketch7, [(111.125, 1575.59375), (111.125, 1284.2875), (460.375, 1284.2875), (460.375, 1575.59375)])  # lines 4-7
add_polygon(sketch7, [(111.125, 1255.7125), (111.125, 964.40625), (460.375, 964.40625), (460.375, 1255.7125)])  # lines 8-11
add_polygon(sketch7, [(111.125, 935.83125), (111.125, 644.525), (460.375, 644.525), (460.375, 935.83125)])  # lines 12-15
sketch7.addConstraint(Sketcher.Constraint("Vertical", 0))
sketch7.addConstraint(Sketcher.Constraint("Horizontal", 1))
sketch7.addConstraint(Sketcher.Constraint("Vertical", 2))
sketch7.addConstraint(Sketcher.Constraint("Horizontal", 3))
sketch7.addConstraint(Sketcher.Constraint("Vertical", 4))
sketch7.addConstraint(Sketcher.Constraint("Horizontal", 5))
sketch7.addConstraint(Sketcher.Constraint("Vertical", 6))
sketch7.addConstraint(Sketcher.Constraint("Horizontal", 7))
sketch7.addConstraint(Sketcher.Constraint("Vertical", 8))
sketch7.addConstraint(Sketcher.Constraint("Horizontal", 9))
sketch7.addConstraint(Sketcher.Constraint("Vertical", 10))
sketch7.addConstraint(Sketcher.Constraint("Horizontal", 11))
sketch7.addConstraint(Sketcher.Constraint("Vertical", 12))
sketch7.addConstraint(Sketcher.Constraint("Horizontal", 13))
sketch7.addConstraint(Sketcher.Constraint("Vertical", 14))
sketch7.addConstraint(Sketcher.Constraint("Horizontal", 15))
sketch7.addConstraint(Sketcher.Constraint("Vertical", 3, 2, 4, 2))
sketch7.addConstraint(Sketcher.Constraint("Vertical", 2, 2, 5, 2))
sketch7.addConstraint(Sketcher.Constraint("Vertical", 7, 2, 8, 2))
sketch7.addConstraint(Sketcher.Constraint("Vertical", 6, 2, 9, 2))
sketch7.addConstraint(Sketcher.Constraint("Vertical", 11, 2, 12, 2))
sketch7.addConstraint(Sketcher.Constraint("Vertical", 10, 2, 13, 2))
sketch7.addConstraint(Sketcher.Constraint("Equal", 2, 4))
sketch7.addConstraint(Sketcher.Constraint("Equal", 6, 8))
sketch7.addConstraint(Sketcher.Constraint("Equal", 10, 12))
sketch7.addConstraint(Sketcher.Constraint("DistanceX", 1, 1, 1, 2, Q("13.75 in")))
sketch7.addConstraint(Sketcher.Constraint("DistanceY", 0, 2, 0, 1, Q("11.46875 in")))
sketch7.addConstraint(Sketcher.Constraint("DistanceX", -1, 1, 0, 2, Q("4.375 in")))
sketch7.addConstraint(Sketcher.Constraint("DistanceY", -1, 1, 0, 2, Q("63.15625 in")))
sketch7.addConstraint(Sketcher.Constraint("DistanceY", -1, 1, 4, 2, Q("50.5625 in")))
sketch7.addConstraint(Sketcher.Constraint("DistanceY", -1, 1, 8, 2, Q("37.96875 in")))
sketch7.addConstraint(Sketcher.Constraint("DistanceY", -1, 1, 12, 2, Q("25.375 in")))
sketch7.setExpression("Constraints[41]", "Params.sketch7_width")
sketch7.setExpression("Constraints[42]", "Params.sketch7_height")
pad7 = body.newObject("PartDesign::Pad", "Pad006")
pad7.Profile = sketch7
pad7.Type = "TwoLengths"
pad7.setExpression("Length", "Params.pad7_length")
pad7.setExpression("Length2", "Params.pad7_length2")

# Sketch on XZ plane
sketch8 = body.newObject("Sketcher::SketchObject", "Sketch007")
sketch8.AttachmentSupport = (doc.getObject("XZ_Plane"), [""])
sketch8.MapMode = "FlatFace"
sketch8.addGeometry(Part.ArcOfCircle(Part.Circle(Vector(306.991491, 1170.775873, 0), Vector(0, 0, 1), 3.175), math.radians(-43.204288), math.radians(136.795712)), False)
sketch8.addGeometry(Part.LineSegment(Vector(304.677178, 1172.949483, 0), Vector(221.927492, 1084.843233, 0)), False)
sketch8.addGeometry(Part.ArcOfCircle(Part.Circle(Vector(224.241805, 1082.669623, 0), Vector(0, 0, 1), 3.175), math.radians(136.795712), math.radians(316.795712)), False)
sketch8.addGeometry(Part.LineSegment(Vector(226.556118, 1080.496013, 0), Vector(309.305803, 1168.602263, 0)), False)
sketch8.addGeometry(Part.ArcOfCircle(Part.Circle(Vector(226.483333, 1046.95625, 0), Vector(0, 0, 1), 3.175), math.radians(136.795712), math.radians(316.795712)), False)
sketch8.addGeometry(Part.LineSegment(Vector(228.797646, 1044.78264, 0), Vector(347.330979, 1170.98889, 0)), False)
sketch8.addGeometry(Part.ArcOfCircle(Part.Circle(Vector(345.016667, 1173.1625, 0), Vector(0, 0, 1), 3.175), math.radians(-43.204288), math.radians(136.795712)), False)
sketch8.addGeometry(Part.LineSegment(Vector(342.702354, 1175.33611, 0), Vector(224.169021, 1049.12986, 0)), False)
sketch8.addGeometry(Part.ArcOfCircle(Part.Circle(Vector(226.483333, 727.075, 0), Vector(0, 0, 1), 3.175), math.radians(136.795712), math.radians(316.795712)), False)
sketch8.addGeometry(Part.LineSegment(Vector(228.797646, 724.90139, 0), Vector(347.330979, 851.10764, 0)), False)
sketch8.addGeometry(Part.ArcOfCircle(Part.Circle(Vector(345.016667, 853.28125, 0), Vector(0, 0, 1), 3.175), math.radians(-43.204288), math.radians(136.795712)), False)
sketch8.addGeometry(Part.LineSegment(Vector(342.702354, 855.45486, 0), Vector(224.169021, 729.24861, 0)), False)
sketch8.addGeometry(Part.ArcOfCircle(Part.Circle(Vector(306.991491, 850.894623, 0), Vector(0, 0, 1), 3.175), math.radians(-43.204288), math.radians(136.795712)), False)
sketch8.addGeometry(Part.LineSegment(Vector(304.677178, 853.068233, 0), Vector(221.927492, 764.961983, 0)), False)
sketch8.addGeometry(Part.ArcOfCircle(Part.Circle(Vector(224.241805, 762.788373, 0), Vector(0, 0, 1), 3.175), math.radians(136.795712), math.radians(316.795712)), False)
sketch8.addGeometry(Part.LineSegment(Vector(226.556118, 760.614763, 0), Vector(309.305803, 848.721013, 0)), False)
sketch8.addGeometry(Part.ArcOfCircle(Part.Circle(Vector(345.016667, 1454.94375, 0), Vector(0, 0, 1), 3.175), math.radians(-43.204288), math.radians(136.795712)), False)
sketch8.addGeometry(Part.LineSegment(Vector(342.702354, 1457.11736, 0), Vector(259.952668, 1369.01111, 0)), False)
sketch8.addGeometry(Part.ArcOfCircle(Part.Circle(Vector(262.266981, 1366.8375, 0), Vector(0, 0, 1), 3.175), math.radians(136.795712), math.radians(316.795712)), False)
sketch8.addGeometry(Part.LineSegment(Vector(264.581294, 1364.66389, 0), Vector(347.330979, 1452.77014, 0)), False)
sketch8.addGeometry(Part.ArcOfCircle(Part.Circle(Vector(345.016667, 1135.0625, 0), Vector(0, 0, 1), 3.175), math.radians(-43.204288), math.radians(136.795712)), False)
sketch8.addGeometry(Part.LineSegment(Vector(342.702354, 1137.23611, 0), Vector(259.952668, 1049.12986, 0)), False)
sketch8.addGeometry(Part.ArcOfCircle(Part.Circle(Vector(262.266981, 1046.95625, 0), Vector(0, 0, 1), 3.175), math.radians(136.795712), math.radians(316.795712)), False)
sketch8.addGeometry(Part.LineSegment(Vector(264.581294, 1044.78264, 0), Vector(347.330979, 1132.88889, 0)), False)
sketch8.addGeometry(Part.ArcOfCircle(Part.Circle(Vector(226.483333, 1366.8375, 0), Vector(0, 0, 1), 3.175), math.radians(136.795712), math.radians(316.795712)), False)
sketch8.addGeometry(Part.LineSegment(Vector(228.797646, 1364.66389, 0), Vector(347.330979, 1490.87014, 0)), False)
sketch8.addGeometry(Part.ArcOfCircle(Part.Circle(Vector(345.016667, 1493.04375, 0), Vector(0, 0, 1), 3.175), math.radians(-43.204288), math.radians(136.795712)), False)
sketch8.addGeometry(Part.LineSegment(Vector(342.702354, 1495.21736, 0), Vector(224.169021, 1369.01111, 0)), False)
sketch8.addGeometry(Part.ArcOfCircle(Part.Circle(Vector(306.991491, 1490.657123, 0), Vector(0, 0, 1), 3.175), math.radians(-43.204288), math.radians(136.795712)), False)
sketch8.addGeometry(Part.LineSegment(Vector(304.677178, 1492.830733, 0), Vector(221.927492, 1404.724483, 0)), False)
sketch8.addGeometry(Part.ArcOfCircle(Part.Circle(Vector(224.241805, 1402.550873, 0), Vector(0, 0, 1), 3.175), math.radians(136.795712), math.radians(316.795712)), False)
sketch8.addGeometry(Part.LineSegment(Vector(226.556118, 1400.377263, 0), Vector(309.305803, 1488.483513, 0)), False)
sketch8.addGeometry(Part.ArcOfCircle(Part.Circle(Vector(345.016667, 1774.825, 0), Vector(0, 0, 1), 3.175), math.radians(-43.204288), math.radians(136.795712)), False)
sketch8.addGeometry(Part.LineSegment(Vector(342.702354, 1776.99861, 0), Vector(259.952668, 1688.89236, 0)), False)
sketch8.addGeometry(Part.ArcOfCircle(Part.Circle(Vector(262.266981, 1686.71875, 0), Vector(0, 0, 1), 3.175), math.radians(136.795712), math.radians(316.795712)), False)
sketch8.addGeometry(Part.LineSegment(Vector(264.581294, 1684.54514, 0), Vector(347.330979, 1772.65139, 0)), False)
sketch8.addGeometry(Part.ArcOfCircle(Part.Circle(Vector(226.483333, 1686.71875, 0), Vector(0, 0, 1), 3.175), math.radians(136.795712), math.radians(316.795712)), False)
sketch8.addGeometry(Part.LineSegment(Vector(228.797646, 1684.54514, 0), Vector(347.330979, 1810.75139, 0)), False)
sketch8.addGeometry(Part.ArcOfCircle(Part.Circle(Vector(345.016667, 1812.925, 0), Vector(0, 0, 1), 3.175), math.radians(-43.204288), math.radians(136.795712)), False)
sketch8.addGeometry(Part.LineSegment(Vector(342.702354, 1815.09861, 0), Vector(224.169021, 1688.89236, 0)), False)
sketch8.addGeometry(Part.ArcOfCircle(Part.Circle(Vector(345.016667, 815.18125, 0), Vector(0, 0, 1), 3.175), math.radians(-43.204288), math.radians(136.795712)), False)
sketch8.addGeometry(Part.LineSegment(Vector(342.702354, 817.35486, 0), Vector(259.952668, 729.24861, 0)), False)
sketch8.addGeometry(Part.ArcOfCircle(Part.Circle(Vector(262.266981, 727.075, 0), Vector(0, 0, 1), 3.175), math.radians(136.795712), math.radians(316.795712)), False)
sketch8.addGeometry(Part.LineSegment(Vector(264.581294, 724.90139, 0), Vector(347.330979, 813.00764, 0)), False)
sketch8.addGeometry(Part.ArcOfCircle(Part.Circle(Vector(306.991491, 1810.538373, 0), Vector(0, 0, 1), 3.175), math.radians(-43.204288), math.radians(136.795712)), False)
sketch8.addGeometry(Part.LineSegment(Vector(304.677178, 1812.711983, 0), Vector(221.927492, 1724.605733, 0)), False)
sketch8.addGeometry(Part.ArcOfCircle(Part.Circle(Vector(224.241805, 1722.432123, 0), Vector(0, 0, 1), 3.175), math.radians(136.795712), math.radians(316.795712)), False)
sketch8.addGeometry(Part.LineSegment(Vector(226.556118, 1720.258513, 0), Vector(309.305803, 1808.364763, 0)), False)
sketch8.addConstraint(Sketcher.Constraint("Tangent", 0, 2, 1, 1))
sketch8.addConstraint(Sketcher.Constraint("Tangent", 1, 2, 2, 1))
sketch8.addConstraint(Sketcher.Constraint("Tangent", 2, 2, 3, 1))
sketch8.addConstraint(Sketcher.Constraint("Tangent", 3, 2, 0, 1))
sketch8.addConstraint(Sketcher.Constraint("Tangent", 4, 2, 5, 1))
sketch8.addConstraint(Sketcher.Constraint("Tangent", 5, 2, 6, 1))
sketch8.addConstraint(Sketcher.Constraint("Tangent", 6, 2, 7, 1))
sketch8.addConstraint(Sketcher.Constraint("Tangent", 7, 2, 4, 1))
sketch8.addConstraint(Sketcher.Constraint("Tangent", 8, 2, 9, 1))
sketch8.addConstraint(Sketcher.Constraint("Tangent", 9, 2, 10, 1))
sketch8.addConstraint(Sketcher.Constraint("Tangent", 10, 2, 11, 1))
sketch8.addConstraint(Sketcher.Constraint("Tangent", 11, 2, 8, 1))
sketch8.addConstraint(Sketcher.Constraint("Tangent", 12, 2, 13, 1))
sketch8.addConstraint(Sketcher.Constraint("Tangent", 13, 2, 14, 1))
sketch8.addConstraint(Sketcher.Constraint("Tangent", 14, 2, 15, 1))
sketch8.addConstraint(Sketcher.Constraint("Tangent", 15, 2, 12, 1))
sketch8.addConstraint(Sketcher.Constraint("Tangent", 16, 2, 17, 1))
sketch8.addConstraint(Sketcher.Constraint("Tangent", 17, 2, 18, 1))
sketch8.addConstraint(Sketcher.Constraint("Tangent", 18, 2, 19, 1))
sketch8.addConstraint(Sketcher.Constraint("Tangent", 19, 2, 16, 1))
sketch8.addConstraint(Sketcher.Constraint("Tangent", 20, 2, 21, 1))
sketch8.addConstraint(Sketcher.Constraint("Tangent", 21, 2, 22, 1))
sketch8.addConstraint(Sketcher.Constraint("Tangent", 22, 2, 23, 1))
sketch8.addConstraint(Sketcher.Constraint("Tangent", 23, 2, 20, 1))
sketch8.addConstraint(Sketcher.Constraint("Tangent", 24, 2, 25, 1))
sketch8.addConstraint(Sketcher.Constraint("Tangent", 25, 2, 26, 1))
sketch8.addConstraint(Sketcher.Constraint("Tangent", 26, 2, 27, 1))
sketch8.addConstraint(Sketcher.Constraint("Tangent", 27, 2, 24, 1))
sketch8.addConstraint(Sketcher.Constraint("Tangent", 28, 2, 29, 1))
sketch8.addConstraint(Sketcher.Constraint("Tangent", 29, 2, 30, 1))
sketch8.addConstraint(Sketcher.Constraint("Tangent", 30, 2, 31, 1))
sketch8.addConstraint(Sketcher.Constraint("Tangent", 31, 2, 28, 1))
sketch8.addConstraint(Sketcher.Constraint("Tangent", 32, 2, 33, 1))
sketch8.addConstraint(Sketcher.Constraint("Tangent", 33, 2, 34, 1))
sketch8.addConstraint(Sketcher.Constraint("Tangent", 34, 2, 35, 1))
sketch8.addConstraint(Sketcher.Constraint("Tangent", 35, 2, 32, 1))
sketch8.addConstraint(Sketcher.Constraint("Tangent", 36, 2, 37, 1))
sketch8.addConstraint(Sketcher.Constraint("Tangent", 37, 2, 38, 1))
sketch8.addConstraint(Sketcher.Constraint("Tangent", 38, 2, 39, 1))
sketch8.addConstraint(Sketcher.Constraint("Tangent", 39, 2, 36, 1))
sketch8.addConstraint(Sketcher.Constraint("Tangent", 40, 2, 41, 1))
sketch8.addConstraint(Sketcher.Constraint("Tangent", 41, 2, 42, 1))
sketch8.addConstraint(Sketcher.Constraint("Tangent", 42, 2, 43, 1))
sketch8.addConstraint(Sketcher.Constraint("Tangent", 43, 2, 40, 1))
sketch8.addConstraint(Sketcher.Constraint("Tangent", 44, 2, 45, 1))
sketch8.addConstraint(Sketcher.Constraint("Tangent", 45, 2, 46, 1))
sketch8.addConstraint(Sketcher.Constraint("Tangent", 46, 2, 47, 1))
sketch8.addConstraint(Sketcher.Constraint("Tangent", 47, 2, 44, 1))
sketch8.addConstraint(Sketcher.Constraint("Equal", 0, 2))
sketch8.addConstraint(Sketcher.Constraint("Equal", 2, 4))
sketch8.addConstraint(Sketcher.Constraint("Equal", 4, 6))
sketch8.addConstraint(Sketcher.Constraint("Equal", 6, 8))
sketch8.addConstraint(Sketcher.Constraint("Equal", 8, 10))
sketch8.addConstraint(Sketcher.Constraint("Equal", 10, 12))
sketch8.addConstraint(Sketcher.Constraint("Equal", 12, 14))
sketch8.addConstraint(Sketcher.Constraint("Equal", 14, 16))
sketch8.addConstraint(Sketcher.Constraint("Equal", 16, 18))
sketch8.addConstraint(Sketcher.Constraint("Equal", 18, 20))
sketch8.addConstraint(Sketcher.Constraint("Equal", 20, 22))
sketch8.addConstraint(Sketcher.Constraint("Equal", 22, 24))
sketch8.addConstraint(Sketcher.Constraint("Equal", 24, 26))
sketch8.addConstraint(Sketcher.Constraint("Equal", 26, 28))
sketch8.addConstraint(Sketcher.Constraint("Equal", 28, 30))
sketch8.addConstraint(Sketcher.Constraint("Equal", 30, 32))
sketch8.addConstraint(Sketcher.Constraint("Equal", 32, 34))
sketch8.addConstraint(Sketcher.Constraint("Equal", 34, 36))
sketch8.addConstraint(Sketcher.Constraint("Equal", 36, 38))
sketch8.addConstraint(Sketcher.Constraint("Equal", 38, 40))
sketch8.addConstraint(Sketcher.Constraint("Equal", 40, 42))
sketch8.addConstraint(Sketcher.Constraint("Equal", 42, 44))
sketch8.addConstraint(Sketcher.Constraint("Equal", 44, 46))
sketch8.addConstraint(Sketcher.Constraint("Parallel", 3, 5))
sketch8.addConstraint(Sketcher.Constraint("Parallel", 7, 9))
sketch8.addConstraint(Sketcher.Constraint("Parallel", 11, 13))
sketch8.addConstraint(Sketcher.Constraint("Parallel", 15, 17))
sketch8.addConstraint(Sketcher.Constraint("Parallel", 19, 21))
sketch8.addConstraint(Sketcher.Constraint("Parallel", 23, 25))
sketch8.addConstraint(Sketcher.Constraint("Parallel", 27, 29))
sketch8.addConstraint(Sketcher.Constraint("Parallel", 31, 33))
sketch8.addConstraint(Sketcher.Constraint("Parallel", 35, 37))
sketch8.addConstraint(Sketcher.Constraint("Parallel", 39, 41))
sketch8.addConstraint(Sketcher.Constraint("Parallel", 43, 45))
sketch8.addConstraint(Sketcher.Constraint("Horizontal", 4, 3, 22, 3))
sketch8.addConstraint(Sketcher.Constraint("Horizontal", 18, 3, 24, 3))
sketch8.addConstraint(Sketcher.Constraint("Horizontal", 34, 3, 36, 3))
sketch8.addConstraint(Sketcher.Constraint("Horizontal", 8, 3, 42, 3))
sketch8.addConstraint(Sketcher.Constraint("Vertical", 4, 3, 8, 3))
sketch8.addConstraint(Sketcher.Constraint("Vertical", 6, 3, 10, 3))
sketch8.addConstraint(Sketcher.Constraint("Vertical", 0, 3, 12, 3))
sketch8.addConstraint(Sketcher.Constraint("Vertical", 2, 3, 14, 3))
sketch8.addConstraint(Sketcher.Constraint("Vertical", 10, 3, 16, 3))
sketch8.addConstraint(Sketcher.Constraint("Vertical", 16, 3, 20, 3))
sketch8.addConstraint(Sketcher.Constraint("Vertical", 18, 3, 22, 3))
sketch8.addConstraint(Sketcher.Constraint("Vertical", 8, 3, 24, 3))
sketch8.addConstraint(Sketcher.Constraint("Vertical", 20, 3, 26, 3))
sketch8.addConstraint(Sketcher.Constraint("Vertical", 12, 3, 28, 3))
sketch8.addConstraint(Sketcher.Constraint("Vertical", 14, 3, 30, 3))
sketch8.addConstraint(Sketcher.Constraint("Vertical", 26, 3, 32, 3))
sketch8.addConstraint(Sketcher.Constraint("Vertical", 22, 3, 34, 3))
sketch8.addConstraint(Sketcher.Constraint("Vertical", 24, 3, 36, 3))
sketch8.addConstraint(Sketcher.Constraint("Vertical", 32, 3, 38, 3))
sketch8.addConstraint(Sketcher.Constraint("Vertical", 38, 3, 40, 3))
sketch8.addConstraint(Sketcher.Constraint("Vertical", 34, 3, 42, 3))
sketch8.addConstraint(Sketcher.Constraint("Vertical", 28, 3, 44, 3))
sketch8.addConstraint(Sketcher.Constraint("Vertical", 30, 3, 46, 3))
sketch8.addConstraint(Sketcher.Constraint("Equal", 15, 17))
sketch8.addConstraint(Sketcher.Constraint("Radius", 0, Q("0.125 in")))
sketch8.addConstraint(Sketcher.Constraint("DistanceY", -1, 1, 4, 3, Q("41.21875 in")))
sketch8.addConstraint(Sketcher.Constraint("DistanceY", -1, 1, 6, 3, Q("46.1875 in")))
sketch8.addConstraint(Sketcher.Constraint("DistanceY", -1, 1, 8, 3, Q("28.625 in")))
sketch8.addConstraint(Sketcher.Constraint("DistanceY", -1, 1, 16, 3, Q("57.28125 in")))
sketch8.addConstraint(Sketcher.Constraint("DistanceY", -1, 1, 18, 3, Q("53.8125 in")))
sketch8.addConstraint(Sketcher.Constraint("DistanceY", -1, 1, 32, 3, Q("69.875 in")))
sketch8.addConstraint(Sketcher.Constraint("Distance", 1, Q("120.87275 mm")))
sketch8.addConstraint(Sketcher.Constraint("DistanceX", -1, 1, 0, 3, Q("306.991491 mm")))
sketch8.addConstraint(Sketcher.Constraint("DistanceX", -1, 1, 18, 3, Q("262.266981 mm")))
sketch8.addConstraint(Sketcher.Constraint("DistanceY", -1, 1, 0, 3, Q("1170.775873 mm")))
sketch8.addConstraint(Sketcher.Constraint("DistanceY", -1, 1, 12, 3, Q("850.894623 mm")))
sketch8.addConstraint(Sketcher.Constraint("DistanceY", -1, 1, 28, 3, Q("1490.657123 mm")))
sketch8.addConstraint(Sketcher.Constraint("DistanceY", -1, 1, 44, 3, Q("1810.538373 mm")))
sketch8.setExpression("Constraints[106]", "Params.sketch8_radius")
pocket1 = body.newObject("PartDesign::Pocket", "Pocket")
pocket1.Profile = sketch8
pocket1.Type = "ThroughAll"
pocket1.Midplane = True

doc.recompute()
